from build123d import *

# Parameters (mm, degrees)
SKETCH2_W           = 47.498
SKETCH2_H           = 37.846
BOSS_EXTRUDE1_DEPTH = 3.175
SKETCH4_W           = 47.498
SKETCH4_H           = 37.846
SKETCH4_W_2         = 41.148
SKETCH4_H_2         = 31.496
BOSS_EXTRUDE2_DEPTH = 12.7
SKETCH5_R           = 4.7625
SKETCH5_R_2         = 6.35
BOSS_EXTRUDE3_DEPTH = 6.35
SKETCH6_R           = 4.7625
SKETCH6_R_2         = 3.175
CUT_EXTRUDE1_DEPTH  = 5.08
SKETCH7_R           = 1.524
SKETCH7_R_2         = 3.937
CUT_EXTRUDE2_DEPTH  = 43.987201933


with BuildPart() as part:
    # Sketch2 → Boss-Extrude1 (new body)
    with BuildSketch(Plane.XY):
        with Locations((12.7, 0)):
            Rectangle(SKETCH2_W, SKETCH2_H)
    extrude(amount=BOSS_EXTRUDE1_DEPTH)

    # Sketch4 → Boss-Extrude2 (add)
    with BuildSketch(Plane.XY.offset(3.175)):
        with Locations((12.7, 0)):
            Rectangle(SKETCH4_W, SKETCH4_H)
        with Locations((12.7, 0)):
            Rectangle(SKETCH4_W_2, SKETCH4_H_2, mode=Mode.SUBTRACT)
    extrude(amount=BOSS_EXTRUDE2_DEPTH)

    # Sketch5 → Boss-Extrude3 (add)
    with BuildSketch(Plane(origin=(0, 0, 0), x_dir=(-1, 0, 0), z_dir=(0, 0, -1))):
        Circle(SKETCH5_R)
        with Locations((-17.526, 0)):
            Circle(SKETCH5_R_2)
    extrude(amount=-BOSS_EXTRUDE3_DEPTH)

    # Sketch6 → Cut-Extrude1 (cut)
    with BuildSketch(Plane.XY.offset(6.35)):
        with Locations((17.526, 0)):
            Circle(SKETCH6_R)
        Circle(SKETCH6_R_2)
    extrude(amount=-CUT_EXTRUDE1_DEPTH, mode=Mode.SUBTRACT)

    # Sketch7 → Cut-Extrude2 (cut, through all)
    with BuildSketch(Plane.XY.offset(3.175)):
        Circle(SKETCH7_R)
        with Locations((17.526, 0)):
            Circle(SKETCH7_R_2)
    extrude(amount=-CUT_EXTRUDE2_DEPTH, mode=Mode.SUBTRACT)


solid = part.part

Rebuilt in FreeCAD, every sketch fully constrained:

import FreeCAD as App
import Part
import Sketcher
from FreeCAD import Vector
Q = App.Units.Quantity

doc = App.newDocument("Part")
body = doc.addObject("PartDesign::Body", "Body")

# Sketch on XY plane
sketch1 = body.newObject("Sketcher::SketchObject", "Sketch")
sketch1.AttachmentSupport = (doc.getObject("XY_Plane"), [""])
sketch1.MapMode = "FlatFace"
sketch1.addGeometry(Part.LineSegment(Vector(-11, 19, 0), Vector(-11, -19, 0)), False)
sketch1.addGeometry(Part.LineSegment(Vector(-11, -19, 0), Vector(36, -19, 0)), False)
sketch1.addGeometry(Part.LineSegment(Vector(36, -19, 0), Vector(36, 19, 0)), False)
sketch1.addGeometry(Part.LineSegment(Vector(36, 19, 0), Vector(-11, 19, 0)), False)
sketch1.addConstraint(Sketcher.Constraint("Coincident", 0, 2, 1, 1))
sketch1.addConstraint(Sketcher.Constraint("Coincident", 1, 2, 2, 1))
sketch1.addConstraint(Sketcher.Constraint("Coincident", 2, 2, 3, 1))
sketch1.addConstraint(Sketcher.Constraint("Coincident", 3, 2, 0, 1))
sketch1.addConstraint(Sketcher.Constraint("Vertical", 0))
sketch1.addConstraint(Sketcher.Constraint("Horizontal", 1))
sketch1.addConstraint(Sketcher.Constraint("Vertical", 2))
sketch1.addConstraint(Sketcher.Constraint("Horizontal", 3))
sketch1.addConstraint(Sketcher.Constraint("DistanceX", 1, 1, 1, 2, Q("1.87 in")))
sketch1.addConstraint(Sketcher.Constraint("DistanceY", 0, 2, 0, 1, Q("1.49 in")))
sketch1.addConstraint(Sketcher.Constraint("DistanceX", 0, 2, -1, 1, Q("0.435 in")))
sketch1.addConstraint(Sketcher.Constraint("DistanceY", 0, 2, -1, 1, Q("0.745 in")))
pad1 = body.newObject("PartDesign::Pad", "Pad")
pad1.Profile = sketch1
pad1.Length = Q("0.125 in")

# Sketch on XY plane
sketch2 = body.newObject("Sketcher::SketchObject", "Sketch001")
sketch2.AttachmentSupport = (doc.getObject("XY_Plane"), [""])
sketch2.MapMode = "FlatFace"
sketch2.AttachmentOffset = App.Placement(Vector(0, 0, 0.125 * 25.4), App.Rotation())
sketch2.addGeometry(Part.LineSegment(Vector(-11, 19, 0), Vector(-11, -19, 0)), False)
sketch2.addGeometry(Part.LineSegment(Vector(-11, -19, 0), Vector(36, -19, 0)), False)
sketch2.addGeometry(Part.LineSegment(Vector(36, -19, 0), Vector(36, 19, 0)), False)
sketch2.addGeometry(Part.LineSegment(Vector(36, 19, 0), Vector(-11, 19, 0)), False)
sketch2.addGeometry(Part.LineSegment(Vector(33, -16, 0), Vector(-8, -16, 0)), False)
sketch2.addGeometry(Part.LineSegment(Vector(-8, -16, 0), Vector(-8, 16, 0)), False)
sketch2.addGeometry(Part.LineSegment(Vector(-8, 16, 0), Vector(33, 16, 0)), False)
sketch2.addGeometry(Part.LineSegment(Vector(33, 16, 0), Vector(33, -16, 0)), False)
sketch2.addConstraint(Sketcher.Constraint("Coincident", 0, 2, 1, 1))
sketch2.addConstraint(Sketcher.Constraint("Coincident", 1, 2, 2, 1))
sketch2.addConstraint(Sketcher.Constraint("Coincident", 2, 2, 3, 1))
sketch2.addConstraint(Sketcher.Constraint("Coincident", 3, 2, 0, 1))
sketch2.addConstraint(Sketcher.Constraint("Coincident", 4, 2, 5, 1))
sketch2.addConstraint(Sketcher.Constraint("Coincident", 5, 2, 6, 1))
sketch2.addConstraint(Sketcher.Constraint("Coincident", 6, 2, 7, 1))
sketch2.addConstraint(Sketcher.Constraint("Coincident", 7, 2, 4, 1))
sketch2.addConstraint(Sketcher.Constraint("Vertical", 0))
sketch2.addConstraint(Sketcher.Constraint("Horizontal", 1))
sketch2.addConstraint(Sketcher.Constraint("Vertical", 2))
sketch2.addConstraint(Sketcher.Constraint("Horizontal", 3))
sketch2.addConstraint(Sketcher.Constraint("Horizontal", 4))
sketch2.addConstraint(Sketcher.Constraint("Vertical", 5))
sketch2.addConstraint(Sketcher.Constraint("Horizontal", 6))
sketch2.addConstraint(Sketcher.Constraint("Vertical", 7))
sketch2.addConstraint(Sketcher.Constraint("DistanceX", 1, 1, 1, 2, Q("1.87 in")))
sketch2.addConstraint(Sketcher.Constraint("DistanceX", 4, 2, 4, 1, Q("1.62 in")))
sketch2.addConstraint(Sketcher.Constraint("DistanceY", 0, 2, 0, 1, Q("1.49 in")))
sketch2.addConstraint(Sketcher.Constraint("DistanceY", 5, 1, 5, 2, Q("1.24 in")))
sketch2.addConstraint(Sketcher.Constraint("DistanceX", 4, 2, -1, 1, Q("0.31 in")))
sketch2.addConstraint(Sketcher.Constraint("DistanceY", 4, 2, -1, 1, Q("0.62 in")))
sketch2.addConstraint(Sketcher.Constraint("DistanceX", 0, 2, -1, 1, Q("0.435 in")))
sketch2.addConstraint(Sketcher.Constraint("DistanceY", 0, 2, -1, 1, Q("0.745 in")))
pad2 = body.newObject("PartDesign::Pad", "Pad001")
pad2.Profile = sketch2
pad2.Length = Q("0.5 in")

# Sketch on XY plane
sketch3 = body.newObject("Sketcher::SketchObject", "Sketch002")
sketch3.AttachmentSupport = (doc.getObject("XY_Plane"), [""])
sketch3.MapMode = "FlatFace"
sketch3.addGeometry(Part.Circle(Vector(0, 0, 0), Vector(0, 0, 1), 4.8), False)
sketch3.addGeometry(Part.Circle(Vector(17.5, 0, 0), Vector(0, 0, 1), 6.3), False)
sketch3.addConstraint(Sketcher.Constraint("Coincident", 0, 3, -1, 1))
sketch3.addConstraint(Sketcher.Constraint("PointOnObject", 1, 3, -1))
sketch3.addConstraint(Sketcher.Constraint("Diameter", 1, Q("0.5 in")))
sketch3.addConstraint(Sketcher.Constraint("Diameter", 0, Q("0.375 in")))
sketch3.addConstraint(Sketcher.Constraint("DistanceX", -1, 1, 1, 3, Q("0.69 in")))
pad3 = body.newObject("PartDesign::Pad", "Pad002")
pad3.Profile = sketch3
pad3.Length = Q("0.25 in")

# Sketch on XY plane
sketch4 = body.newObject("Sketcher::SketchObject", "Sketch003")
sketch4.AttachmentSupport = (doc.getObject("XY_Plane"), [""])
sketch4.MapMode = "FlatFace"
sketch4.AttachmentOffset = App.Placement(Vector(0, 0, 0.25 * 25.4), App.Rotation())
sketch4.addGeometry(Part.Circle(Vector(17.5, 0, 0), Vector(0, 0, 1), 4.8), False)
sketch4.addGeometry(Part.Circle(Vector(0, 0, 0), Vector(0, 0, 1), 3.2), False)
sketch4.addConstraint(Sketcher.Constraint("Coincident", 1, 3, -1, 1))
sketch4.addConstraint(Sketcher.Constraint("PointOnObject", 0, 3, -1))
sketch4.addConstraint(Sketcher.Constraint("Diameter", 1, Q("0.25 in")))
sketch4.addConstraint(Sketcher.Constraint("Diameter", 0, Q("0.375 in")))
sketch4.addConstraint(Sketcher.Constraint("DistanceX", -1, 1, 0, 3, Q("0.69 in")))
pocket1 = body.newObject("PartDesign::Pocket", "Pocket")
pocket1.Profile = sketch4
pocket1.Length = Q("0.2 in")

# Sketch on XY plane
sketch5 = body.newObject("Sketcher::SketchObject", "Sketch004")
sketch5.AttachmentSupport = (doc.getObject("XY_Plane"), [""])
sketch5.MapMode = "FlatFace"
sketch5.AttachmentOffset = App.Placement(Vector(0, 0, 0.125 * 25.4), App.Rotation())
sketch5.addGeometry(Part.Circle(Vector(0, 0, 0), Vector(0, 0, 1), 1.5), False)
sketch5.addGeometry(Part.Circle(Vector(17.5, 0, 0), Vector(0, 0, 1), 3.9), False)
sketch5.addConstraint(Sketcher.Constraint("Coincident", 0, 3, -1, 1))
sketch5.addConstraint(Sketcher.Constraint("PointOnObject", 1, 3, -1))
sketch5.addConstraint(Sketcher.Constraint("Diameter", 0, Q("0.12 in")))
sketch5.addConstraint(Sketcher.Constraint("Diameter", 1, Q("0.31 in")))
sketch5.addConstraint(Sketcher.Constraint("DistanceX", -1, 1, 1, 3, Q("0.69 in")))
pocket2 = body.newObject("PartDesign::Pocket", "Pocket001")
pocket2.Profile = sketch5
pocket2.Type = "ThroughAll"

doc.recompute()
